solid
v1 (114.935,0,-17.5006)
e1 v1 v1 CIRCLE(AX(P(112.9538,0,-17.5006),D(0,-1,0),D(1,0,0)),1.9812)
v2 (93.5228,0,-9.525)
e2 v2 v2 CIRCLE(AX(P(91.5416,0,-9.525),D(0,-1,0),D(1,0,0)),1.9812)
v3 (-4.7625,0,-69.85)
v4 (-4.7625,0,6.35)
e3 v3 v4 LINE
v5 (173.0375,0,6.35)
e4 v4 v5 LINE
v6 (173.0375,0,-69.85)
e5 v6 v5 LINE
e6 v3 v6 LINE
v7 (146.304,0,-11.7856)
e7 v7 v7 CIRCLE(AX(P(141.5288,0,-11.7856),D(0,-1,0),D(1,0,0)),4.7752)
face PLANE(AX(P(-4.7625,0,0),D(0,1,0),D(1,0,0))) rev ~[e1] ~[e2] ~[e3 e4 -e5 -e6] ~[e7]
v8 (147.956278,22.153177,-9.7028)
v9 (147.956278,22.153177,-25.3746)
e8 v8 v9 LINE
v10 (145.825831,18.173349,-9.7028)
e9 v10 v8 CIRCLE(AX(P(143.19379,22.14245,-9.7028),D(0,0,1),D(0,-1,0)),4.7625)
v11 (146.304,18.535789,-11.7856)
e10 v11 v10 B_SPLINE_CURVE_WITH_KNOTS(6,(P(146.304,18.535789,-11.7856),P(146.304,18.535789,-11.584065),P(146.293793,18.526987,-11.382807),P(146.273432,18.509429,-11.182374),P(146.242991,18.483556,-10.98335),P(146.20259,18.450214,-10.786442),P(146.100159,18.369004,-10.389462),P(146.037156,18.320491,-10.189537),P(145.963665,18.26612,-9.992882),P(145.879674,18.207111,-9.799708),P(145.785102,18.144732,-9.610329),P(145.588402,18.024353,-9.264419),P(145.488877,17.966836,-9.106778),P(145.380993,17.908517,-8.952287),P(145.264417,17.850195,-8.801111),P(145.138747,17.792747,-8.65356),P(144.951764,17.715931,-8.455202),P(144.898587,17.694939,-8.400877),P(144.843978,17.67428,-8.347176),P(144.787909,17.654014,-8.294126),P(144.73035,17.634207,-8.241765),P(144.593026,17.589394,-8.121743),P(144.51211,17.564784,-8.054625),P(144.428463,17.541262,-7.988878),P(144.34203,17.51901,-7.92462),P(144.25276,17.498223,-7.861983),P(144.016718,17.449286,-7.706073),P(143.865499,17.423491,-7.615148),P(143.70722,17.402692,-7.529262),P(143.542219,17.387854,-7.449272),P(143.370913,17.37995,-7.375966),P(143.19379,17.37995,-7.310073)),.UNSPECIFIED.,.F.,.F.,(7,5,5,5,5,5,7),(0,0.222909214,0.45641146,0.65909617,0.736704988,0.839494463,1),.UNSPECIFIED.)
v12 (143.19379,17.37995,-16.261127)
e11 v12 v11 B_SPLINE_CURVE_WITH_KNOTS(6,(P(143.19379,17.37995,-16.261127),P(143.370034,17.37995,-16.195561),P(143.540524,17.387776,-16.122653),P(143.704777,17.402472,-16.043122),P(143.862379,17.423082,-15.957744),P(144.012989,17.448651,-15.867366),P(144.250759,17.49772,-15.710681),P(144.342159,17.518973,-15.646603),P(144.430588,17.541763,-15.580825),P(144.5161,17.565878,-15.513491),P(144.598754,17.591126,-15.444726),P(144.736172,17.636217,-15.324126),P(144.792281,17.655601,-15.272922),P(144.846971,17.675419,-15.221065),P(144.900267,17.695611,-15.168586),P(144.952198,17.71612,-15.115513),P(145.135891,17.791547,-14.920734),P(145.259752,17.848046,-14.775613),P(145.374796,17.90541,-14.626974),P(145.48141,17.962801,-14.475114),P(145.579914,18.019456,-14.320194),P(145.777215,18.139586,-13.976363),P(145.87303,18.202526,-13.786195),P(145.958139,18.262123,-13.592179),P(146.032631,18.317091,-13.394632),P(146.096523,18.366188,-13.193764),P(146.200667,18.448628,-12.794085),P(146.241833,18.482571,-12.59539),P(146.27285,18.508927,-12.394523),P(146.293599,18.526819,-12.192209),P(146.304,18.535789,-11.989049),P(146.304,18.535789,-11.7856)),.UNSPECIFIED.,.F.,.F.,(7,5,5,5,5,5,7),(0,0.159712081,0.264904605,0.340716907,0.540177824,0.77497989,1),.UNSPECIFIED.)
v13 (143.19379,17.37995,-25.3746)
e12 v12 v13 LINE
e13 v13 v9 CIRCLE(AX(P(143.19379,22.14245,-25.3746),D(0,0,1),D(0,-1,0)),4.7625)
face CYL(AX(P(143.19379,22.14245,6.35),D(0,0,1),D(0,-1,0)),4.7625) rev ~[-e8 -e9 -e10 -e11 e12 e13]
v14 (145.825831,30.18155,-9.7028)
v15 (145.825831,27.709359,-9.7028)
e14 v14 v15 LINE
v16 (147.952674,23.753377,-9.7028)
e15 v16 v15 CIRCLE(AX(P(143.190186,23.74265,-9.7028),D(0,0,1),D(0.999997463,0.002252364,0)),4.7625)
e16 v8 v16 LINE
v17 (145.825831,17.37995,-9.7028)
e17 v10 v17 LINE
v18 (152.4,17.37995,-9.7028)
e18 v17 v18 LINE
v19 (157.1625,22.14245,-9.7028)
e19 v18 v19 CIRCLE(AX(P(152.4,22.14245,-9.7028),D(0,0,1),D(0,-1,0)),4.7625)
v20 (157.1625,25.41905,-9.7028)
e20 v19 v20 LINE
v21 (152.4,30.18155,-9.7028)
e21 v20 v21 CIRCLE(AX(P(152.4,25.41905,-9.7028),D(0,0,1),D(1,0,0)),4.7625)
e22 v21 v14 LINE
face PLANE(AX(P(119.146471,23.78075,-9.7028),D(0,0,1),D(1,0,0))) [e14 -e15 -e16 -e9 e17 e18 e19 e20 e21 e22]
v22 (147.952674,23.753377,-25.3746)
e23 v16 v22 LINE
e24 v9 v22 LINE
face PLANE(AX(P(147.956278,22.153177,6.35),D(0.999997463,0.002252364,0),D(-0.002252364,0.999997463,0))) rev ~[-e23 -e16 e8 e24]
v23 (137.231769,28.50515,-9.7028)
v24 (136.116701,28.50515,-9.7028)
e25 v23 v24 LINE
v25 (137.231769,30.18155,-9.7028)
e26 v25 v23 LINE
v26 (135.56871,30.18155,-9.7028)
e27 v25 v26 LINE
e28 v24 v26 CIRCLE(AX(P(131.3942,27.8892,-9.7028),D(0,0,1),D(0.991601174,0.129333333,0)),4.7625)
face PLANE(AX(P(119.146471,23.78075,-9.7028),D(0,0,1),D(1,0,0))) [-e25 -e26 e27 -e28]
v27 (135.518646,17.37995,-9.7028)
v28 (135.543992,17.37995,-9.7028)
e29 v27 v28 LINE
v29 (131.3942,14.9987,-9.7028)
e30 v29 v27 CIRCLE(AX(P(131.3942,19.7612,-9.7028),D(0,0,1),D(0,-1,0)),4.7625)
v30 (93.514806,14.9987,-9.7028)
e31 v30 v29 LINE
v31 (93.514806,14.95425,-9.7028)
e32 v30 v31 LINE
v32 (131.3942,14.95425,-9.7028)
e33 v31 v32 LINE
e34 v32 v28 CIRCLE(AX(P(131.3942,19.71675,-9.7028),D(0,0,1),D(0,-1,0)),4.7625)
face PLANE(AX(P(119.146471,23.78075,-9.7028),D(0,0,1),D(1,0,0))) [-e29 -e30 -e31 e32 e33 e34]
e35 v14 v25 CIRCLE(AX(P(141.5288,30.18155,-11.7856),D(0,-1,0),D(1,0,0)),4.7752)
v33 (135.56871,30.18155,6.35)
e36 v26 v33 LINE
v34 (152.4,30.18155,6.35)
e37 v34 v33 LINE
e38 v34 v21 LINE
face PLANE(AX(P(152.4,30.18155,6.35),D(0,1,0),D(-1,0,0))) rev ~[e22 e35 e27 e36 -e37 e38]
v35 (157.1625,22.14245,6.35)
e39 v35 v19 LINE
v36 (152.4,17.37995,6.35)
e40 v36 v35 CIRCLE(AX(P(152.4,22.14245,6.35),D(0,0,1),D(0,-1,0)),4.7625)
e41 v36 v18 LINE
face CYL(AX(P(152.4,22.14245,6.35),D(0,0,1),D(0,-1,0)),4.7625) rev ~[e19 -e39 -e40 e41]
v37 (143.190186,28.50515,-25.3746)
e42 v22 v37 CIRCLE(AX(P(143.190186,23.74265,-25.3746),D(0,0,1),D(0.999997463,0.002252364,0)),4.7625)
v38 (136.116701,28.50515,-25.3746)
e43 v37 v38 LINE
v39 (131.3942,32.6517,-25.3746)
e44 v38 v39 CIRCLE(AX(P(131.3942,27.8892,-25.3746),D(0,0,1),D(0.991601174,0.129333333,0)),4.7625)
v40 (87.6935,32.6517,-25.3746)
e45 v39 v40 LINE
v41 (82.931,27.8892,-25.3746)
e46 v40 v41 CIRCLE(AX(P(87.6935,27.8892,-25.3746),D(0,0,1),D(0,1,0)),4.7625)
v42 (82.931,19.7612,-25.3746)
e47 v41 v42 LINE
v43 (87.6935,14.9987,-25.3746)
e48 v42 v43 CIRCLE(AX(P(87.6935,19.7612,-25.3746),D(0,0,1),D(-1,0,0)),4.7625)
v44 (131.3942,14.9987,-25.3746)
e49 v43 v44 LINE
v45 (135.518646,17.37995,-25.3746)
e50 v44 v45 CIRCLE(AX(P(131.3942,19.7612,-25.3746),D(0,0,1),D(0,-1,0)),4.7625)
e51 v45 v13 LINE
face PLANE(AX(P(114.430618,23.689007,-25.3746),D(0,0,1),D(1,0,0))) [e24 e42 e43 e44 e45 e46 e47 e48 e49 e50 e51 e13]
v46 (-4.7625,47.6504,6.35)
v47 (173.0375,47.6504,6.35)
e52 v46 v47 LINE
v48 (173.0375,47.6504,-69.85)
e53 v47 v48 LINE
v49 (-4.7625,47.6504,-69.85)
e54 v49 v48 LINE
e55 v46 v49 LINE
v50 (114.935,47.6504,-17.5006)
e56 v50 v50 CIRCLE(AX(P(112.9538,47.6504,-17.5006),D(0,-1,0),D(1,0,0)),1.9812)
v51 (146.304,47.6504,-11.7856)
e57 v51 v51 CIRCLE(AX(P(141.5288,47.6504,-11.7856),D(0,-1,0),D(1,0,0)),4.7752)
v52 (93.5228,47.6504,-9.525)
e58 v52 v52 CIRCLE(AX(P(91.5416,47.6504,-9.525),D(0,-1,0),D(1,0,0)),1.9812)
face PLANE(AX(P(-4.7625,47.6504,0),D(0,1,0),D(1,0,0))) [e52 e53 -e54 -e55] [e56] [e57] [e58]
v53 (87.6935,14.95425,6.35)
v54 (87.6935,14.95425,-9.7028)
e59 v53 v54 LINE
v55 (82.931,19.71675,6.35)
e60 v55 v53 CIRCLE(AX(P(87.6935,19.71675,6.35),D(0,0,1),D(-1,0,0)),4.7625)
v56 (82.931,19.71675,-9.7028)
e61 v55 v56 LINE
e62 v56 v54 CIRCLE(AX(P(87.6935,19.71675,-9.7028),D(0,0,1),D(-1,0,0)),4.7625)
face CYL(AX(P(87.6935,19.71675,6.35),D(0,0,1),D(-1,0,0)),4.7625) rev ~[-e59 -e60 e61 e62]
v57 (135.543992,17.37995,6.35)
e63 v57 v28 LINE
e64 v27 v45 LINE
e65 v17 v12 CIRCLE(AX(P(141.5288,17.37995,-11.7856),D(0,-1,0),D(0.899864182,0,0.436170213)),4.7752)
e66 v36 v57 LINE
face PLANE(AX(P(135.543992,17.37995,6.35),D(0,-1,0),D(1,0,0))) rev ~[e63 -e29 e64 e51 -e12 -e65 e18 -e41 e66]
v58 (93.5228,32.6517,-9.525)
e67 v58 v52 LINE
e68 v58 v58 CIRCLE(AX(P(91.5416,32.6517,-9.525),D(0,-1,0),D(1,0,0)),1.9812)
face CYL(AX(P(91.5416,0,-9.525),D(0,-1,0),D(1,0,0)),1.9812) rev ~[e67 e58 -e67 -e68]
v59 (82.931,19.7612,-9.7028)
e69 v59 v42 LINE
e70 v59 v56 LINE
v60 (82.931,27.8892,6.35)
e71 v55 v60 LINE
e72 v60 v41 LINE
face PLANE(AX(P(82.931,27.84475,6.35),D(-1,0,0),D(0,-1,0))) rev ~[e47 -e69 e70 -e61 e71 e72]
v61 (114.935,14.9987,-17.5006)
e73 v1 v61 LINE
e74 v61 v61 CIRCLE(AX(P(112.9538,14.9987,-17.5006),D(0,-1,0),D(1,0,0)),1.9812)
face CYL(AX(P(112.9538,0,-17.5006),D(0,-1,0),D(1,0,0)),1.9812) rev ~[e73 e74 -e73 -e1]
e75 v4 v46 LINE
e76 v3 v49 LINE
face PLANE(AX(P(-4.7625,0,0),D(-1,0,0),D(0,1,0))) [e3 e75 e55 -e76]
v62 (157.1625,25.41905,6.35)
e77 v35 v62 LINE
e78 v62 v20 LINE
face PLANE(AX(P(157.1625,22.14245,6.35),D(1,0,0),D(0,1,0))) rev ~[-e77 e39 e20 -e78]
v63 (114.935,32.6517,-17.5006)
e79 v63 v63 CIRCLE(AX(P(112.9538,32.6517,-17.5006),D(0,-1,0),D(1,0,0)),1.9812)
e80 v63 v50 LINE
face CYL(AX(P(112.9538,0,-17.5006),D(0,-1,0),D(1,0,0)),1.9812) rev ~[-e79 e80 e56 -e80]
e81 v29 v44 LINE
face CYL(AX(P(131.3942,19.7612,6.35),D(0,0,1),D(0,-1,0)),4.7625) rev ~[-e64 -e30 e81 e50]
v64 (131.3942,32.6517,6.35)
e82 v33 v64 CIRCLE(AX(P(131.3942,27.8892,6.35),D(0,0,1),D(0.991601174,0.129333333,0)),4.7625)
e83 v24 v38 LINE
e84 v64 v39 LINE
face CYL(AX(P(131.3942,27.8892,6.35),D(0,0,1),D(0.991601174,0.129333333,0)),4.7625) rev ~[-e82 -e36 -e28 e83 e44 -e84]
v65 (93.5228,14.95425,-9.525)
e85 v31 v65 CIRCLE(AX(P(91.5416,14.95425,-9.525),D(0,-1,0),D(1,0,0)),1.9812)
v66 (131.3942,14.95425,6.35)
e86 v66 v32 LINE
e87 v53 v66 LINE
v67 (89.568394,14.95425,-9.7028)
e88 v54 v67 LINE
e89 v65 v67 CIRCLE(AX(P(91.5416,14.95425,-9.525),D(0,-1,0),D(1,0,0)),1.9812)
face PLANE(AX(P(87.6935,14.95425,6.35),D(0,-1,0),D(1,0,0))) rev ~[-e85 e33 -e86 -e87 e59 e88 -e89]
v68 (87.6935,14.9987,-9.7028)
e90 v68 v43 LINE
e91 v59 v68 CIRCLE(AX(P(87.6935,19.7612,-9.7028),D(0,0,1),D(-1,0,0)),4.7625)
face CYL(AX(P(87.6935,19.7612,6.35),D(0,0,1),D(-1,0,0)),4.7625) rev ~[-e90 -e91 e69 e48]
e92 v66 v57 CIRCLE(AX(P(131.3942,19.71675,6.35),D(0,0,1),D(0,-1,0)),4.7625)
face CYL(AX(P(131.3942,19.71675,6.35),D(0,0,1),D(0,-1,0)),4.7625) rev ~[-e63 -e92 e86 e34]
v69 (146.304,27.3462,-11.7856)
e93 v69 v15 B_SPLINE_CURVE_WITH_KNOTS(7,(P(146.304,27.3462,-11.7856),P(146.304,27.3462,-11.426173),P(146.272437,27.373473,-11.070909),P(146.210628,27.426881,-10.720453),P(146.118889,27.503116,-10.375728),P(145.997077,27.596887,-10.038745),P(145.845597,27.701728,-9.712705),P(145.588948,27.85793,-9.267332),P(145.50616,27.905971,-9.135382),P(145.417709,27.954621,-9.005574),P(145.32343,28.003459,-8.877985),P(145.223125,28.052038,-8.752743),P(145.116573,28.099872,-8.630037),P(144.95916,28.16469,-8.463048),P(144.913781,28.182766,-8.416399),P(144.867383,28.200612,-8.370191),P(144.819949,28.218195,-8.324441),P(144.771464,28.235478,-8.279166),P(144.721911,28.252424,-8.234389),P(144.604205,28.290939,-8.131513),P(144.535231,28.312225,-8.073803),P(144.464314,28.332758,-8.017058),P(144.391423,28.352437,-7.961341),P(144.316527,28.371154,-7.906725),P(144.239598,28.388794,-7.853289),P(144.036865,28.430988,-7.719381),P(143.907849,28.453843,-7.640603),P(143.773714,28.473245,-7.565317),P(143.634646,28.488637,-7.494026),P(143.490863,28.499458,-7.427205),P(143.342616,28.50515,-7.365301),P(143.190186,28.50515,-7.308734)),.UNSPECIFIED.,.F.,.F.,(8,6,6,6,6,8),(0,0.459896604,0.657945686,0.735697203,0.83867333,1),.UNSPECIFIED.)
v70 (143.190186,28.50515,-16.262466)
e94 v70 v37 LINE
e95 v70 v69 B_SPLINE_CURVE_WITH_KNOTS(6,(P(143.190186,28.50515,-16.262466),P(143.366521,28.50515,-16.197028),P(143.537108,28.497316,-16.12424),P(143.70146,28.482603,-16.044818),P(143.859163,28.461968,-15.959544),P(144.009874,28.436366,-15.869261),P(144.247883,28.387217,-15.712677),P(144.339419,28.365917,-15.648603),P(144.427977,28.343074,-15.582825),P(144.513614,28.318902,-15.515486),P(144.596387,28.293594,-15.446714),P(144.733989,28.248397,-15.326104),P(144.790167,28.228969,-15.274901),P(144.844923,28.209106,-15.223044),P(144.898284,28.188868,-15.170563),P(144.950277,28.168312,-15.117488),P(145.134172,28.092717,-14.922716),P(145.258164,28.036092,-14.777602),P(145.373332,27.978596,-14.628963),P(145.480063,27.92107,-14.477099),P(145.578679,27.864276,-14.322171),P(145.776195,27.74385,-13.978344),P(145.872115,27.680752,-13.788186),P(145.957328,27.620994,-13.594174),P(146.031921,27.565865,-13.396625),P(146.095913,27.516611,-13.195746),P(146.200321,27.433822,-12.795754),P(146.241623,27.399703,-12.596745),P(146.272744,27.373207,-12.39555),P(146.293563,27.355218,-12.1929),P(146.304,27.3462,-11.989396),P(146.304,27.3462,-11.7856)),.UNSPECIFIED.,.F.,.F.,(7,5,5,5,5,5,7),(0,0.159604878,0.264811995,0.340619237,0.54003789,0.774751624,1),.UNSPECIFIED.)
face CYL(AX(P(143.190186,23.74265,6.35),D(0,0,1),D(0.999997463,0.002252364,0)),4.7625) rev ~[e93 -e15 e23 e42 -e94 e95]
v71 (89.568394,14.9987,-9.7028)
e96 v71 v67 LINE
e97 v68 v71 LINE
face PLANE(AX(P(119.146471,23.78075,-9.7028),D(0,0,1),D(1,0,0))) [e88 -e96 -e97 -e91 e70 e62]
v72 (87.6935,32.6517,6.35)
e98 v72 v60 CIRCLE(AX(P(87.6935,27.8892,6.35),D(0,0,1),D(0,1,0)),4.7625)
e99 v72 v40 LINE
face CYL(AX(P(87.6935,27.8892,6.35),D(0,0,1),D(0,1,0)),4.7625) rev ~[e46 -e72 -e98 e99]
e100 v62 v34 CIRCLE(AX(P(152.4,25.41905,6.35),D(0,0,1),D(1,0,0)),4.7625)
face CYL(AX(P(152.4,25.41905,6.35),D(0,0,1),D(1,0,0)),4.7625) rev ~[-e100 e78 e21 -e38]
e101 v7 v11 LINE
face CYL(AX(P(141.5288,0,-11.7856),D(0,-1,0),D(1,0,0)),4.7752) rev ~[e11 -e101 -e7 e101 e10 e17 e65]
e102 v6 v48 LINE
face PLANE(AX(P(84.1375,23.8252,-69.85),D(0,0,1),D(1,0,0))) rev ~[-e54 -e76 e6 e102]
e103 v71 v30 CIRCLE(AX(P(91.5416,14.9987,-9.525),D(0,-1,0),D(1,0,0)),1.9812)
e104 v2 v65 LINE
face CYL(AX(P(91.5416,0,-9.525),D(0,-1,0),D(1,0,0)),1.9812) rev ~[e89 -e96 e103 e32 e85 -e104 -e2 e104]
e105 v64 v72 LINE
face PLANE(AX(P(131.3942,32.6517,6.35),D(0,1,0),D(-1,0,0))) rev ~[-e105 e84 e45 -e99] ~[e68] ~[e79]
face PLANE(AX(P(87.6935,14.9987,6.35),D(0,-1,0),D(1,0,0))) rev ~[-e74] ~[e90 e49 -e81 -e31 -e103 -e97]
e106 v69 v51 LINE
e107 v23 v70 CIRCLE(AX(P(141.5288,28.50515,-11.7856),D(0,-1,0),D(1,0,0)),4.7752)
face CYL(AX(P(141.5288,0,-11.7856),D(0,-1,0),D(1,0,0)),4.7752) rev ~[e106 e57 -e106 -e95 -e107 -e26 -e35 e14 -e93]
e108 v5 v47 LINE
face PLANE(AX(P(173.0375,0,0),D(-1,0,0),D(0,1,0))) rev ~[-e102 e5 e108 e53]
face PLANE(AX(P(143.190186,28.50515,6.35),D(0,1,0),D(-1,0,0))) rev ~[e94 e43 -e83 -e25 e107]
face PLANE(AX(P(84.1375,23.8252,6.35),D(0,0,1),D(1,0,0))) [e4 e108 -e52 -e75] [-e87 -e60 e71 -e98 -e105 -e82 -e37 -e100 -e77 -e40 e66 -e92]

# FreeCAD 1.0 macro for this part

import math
import FreeCAD as App
import Part
import Sketcher
Q = App.Units.Quantity


def add_polygon(sketch, points):
    """Adds a closed chain of lines whose ends are joined by coincident constraints."""
    first, n = sketch.GeometryCount, len(points)
    for a, b in zip(points, points[1:] + points[:1]):
        sketch.addGeometry(Part.LineSegment(App.Vector(*a, 0), App.Vector(*b, 0)), False)
    for i in range(n):
        sketch.addConstraint(Sketcher.Constraint("Coincident", first + i, 2, first + (i + 1) % n, 1))

doc = App.newDocument("Part")
body = doc.addObject("PartDesign::Body", "Body")

sketch1 = body.newObject("Sketcher::SketchObject", "Sketch")
sketch1.AttachmentSupport = (doc.getObject("XY_Plane"), [""])
sketch1.MapMode = "FlatFace"
add_polygon(sketch1, [(-5, 48), (-5, 0), (173, 0), (173, 48)])
sketch1.addConstraint([
    Sketcher.Constraint("Vertical", 0),
    Sketcher.Constraint("Horizontal", 1),
    Sketcher.Constraint("Vertical", 2),
    Sketcher.Constraint("Horizontal", 3),
    Sketcher.Constraint("PointOnObject", 0, 2, -1),
    Sketcher.Constraint("DistanceX", 1, 1, 1, 2, Q("7 in")),
    Sketcher.Constraint("DistanceY", 0, 2, 0, 1, Q("1.876 in")),
    Sketcher.Constraint("DistanceX", 0, 2, -1, 1, Q("0.1875 in")),
])
pad1 = body.newObject("PartDesign::Pad", "Pad")
pad1.Profile = sketch1
pad1.Type = "TwoLengths"
pad1.Length = Q("2.75 in")
pad1.Length2 = Q("0.25 in")
pad1.Reversed = True

sketch2 = body.newObject("Sketcher::SketchObject", "Sketch001")
sketch2.AttachmentSupport = (doc.getObject("XZ_Plane"), [""])
sketch2.MapMode = "FlatFace"
sketch2.addGeometry([
    Part.Circle(App.Vector(141.5, -11.8, 0), App.Vector(0, 0, 1), 4.8),
    Part.Circle(App.Vector(113, -17.5, 0), App.Vector(0, 0, 1), 2),
    Part.Circle(App.Vector(91.5, -9.5, 0), App.Vector(0, 0, 1), 2),
], False)
sketch2.addConstraint([
    Sketcher.Constraint("Equal", 1, 2),
    Sketcher.Constraint("Diameter", 0, Q("0.376 in")),
    Sketcher.Constraint("Diameter", 1, Q("0.156 in")),
    Sketcher.Constraint("DistanceX", -1, 1, 0, 3, Q("5.572 in")),
    Sketcher.Constraint("DistanceY", 0, 3, -1, 1, Q("0.464 in")),
    Sketcher.Constraint("DistanceX", -1, 1, 1, 3, Q("4.447 in")),
    Sketcher.Constraint("DistanceY", 1, 3, -1, 1, Q("0.689 in")),
    Sketcher.Constraint("DistanceX", -1, 1, 2, 3, Q("3.604 in")),
    Sketcher.Constraint("DistanceY", 2, 3, -1, 1, Q("0.375 in")),
])
pocket1 = body.newObject("PartDesign::Pocket", "Pocket")
pocket1.Profile = sketch2
pocket1.Type = "ThroughAll"

sketch3 = body.newObject("Sketcher::SketchObject", "Sketch002")
sketch3.AttachmentSupport = (doc.getObject("XY_Plane"), [""])
sketch3.MapMode = "FlatFace"
sketch3.AttachmentOffset = App.Placement(App.Vector(0, 0, 0.25 * 25.4), App.Rotation())
sketch3.addGeometry([
    Part.LineSegment(App.Vector(131.4, 32.6, 0), App.Vector(87.7, 32.6, 0)),
    Part.ArcOfCircle(Part.Circle(App.Vector(87.7, 27.8, 0), App.Vector(0, 0, 1), 4.8), math.radians(90), math.radians(180)),
    Part.LineSegment(App.Vector(82.9, 27.8, 0), App.Vector(82.9, 19.7, 0)),
    Part.ArcOfCircle(Part.Circle(App.Vector(87.7, 19.7, 0), App.Vector(0, 0, 1), 4.8), math.radians(180), math.radians(270)),
    Part.LineSegment(App.Vector(87.7, 15, 0), App.Vector(131.4, 15, 0)),
    Part.ArcOfCircle(Part.Circle(App.Vector(131.4, 19.7, 0), App.Vector(0, 0, 1), 4.8), math.radians(-90), math.radians(-29)),
    Part.LineSegment(App.Vector(135.5, 17.4, 0), App.Vector(152.4, 17.4, 0)),
    Part.ArcOfCircle(Part.Circle(App.Vector(152.4, 22.1, 0), App.Vector(0, 0, 1), 4.8), math.radians(-90), math.radians(0)),
    Part.LineSegment(App.Vector(157.2, 22.1, 0), App.Vector(157.2, 25.4, 0)),
    Part.ArcOfCircle(Part.Circle(App.Vector(152.4, 25.4, 0), App.Vector(0, 0, 1), 4.8), math.radians(0), math.radians(90)),
    Part.LineSegment(App.Vector(152.4, 30.2, 0), App.Vector(135.5, 30.2, 0)),
    Part.ArcOfCircle(Part.Circle(App.Vector(131.4, 27.8, 0), App.Vector(0, 0, 1), 4.8), math.radians(29), math.radians(90)),
], False)
sketch3.addConstraint([
    Sketcher.Constraint("Tangent", 0, 2, 1, 1),
    Sketcher.Constraint("Tangent", 1, 2, 2, 1),
    Sketcher.Constraint("Tangent", 2, 2, 3, 1),
    Sketcher.Constraint("Tangent", 3, 2, 4, 1),
    Sketcher.Constraint("Tangent", 4, 2, 5, 1),
    Sketcher.Constraint("Coincident", 5, 2, 6, 1),
    Sketcher.Constraint("Tangent", 6, 2, 7, 1),
    Sketcher.Constraint("Tangent", 7, 2, 8, 1),
    Sketcher.Constraint("Tangent", 8, 2, 9, 1),
    Sketcher.Constraint("Tangent", 9, 2, 10, 1),
    Sketcher.Constraint("Coincident", 10, 2, 11, 1),
    Sketcher.Constraint("Tangent", 11, 2, 0, 1),
    Sketcher.Constraint("Horizontal", 0),
    Sketcher.Constraint("Vertical", 2),
    Sketcher.Constraint("Horizontal", 4),
    Sketcher.Constraint("Horizontal", 6),
    Sketcher.Constraint("Vertical", 8),
    Sketcher.Constraint("Horizontal", 10),
    Sketcher.Constraint("Equal", 1, 3),
    Sketcher.Constraint("Equal", 3, 5),
    Sketcher.Constraint("Equal", 5, 7),
    Sketcher.Constraint("Equal", 7, 9),
    Sketcher.Constraint("Equal", 9, 11),
    Sketcher.Constraint("Vertical", 5, 3, 11, 3),
    Sketcher.Constraint("Vertical", 5, 2, 10, 2),
    Sketcher.Constraint("DistanceX", -1, 1, 7, 3, Q("6 in")),
    Sketcher.Constraint("Radius", 1, Q("0.1875 in")),
    Sketcher.Constraint("DistanceY", 2, 2, 2, 1, Q("0.32 in")),
    Sketcher.Constraint("DistanceY", 8, 1, 8, 2, Q("0.129 in")),
    Sketcher.Constraint("DistanceX", 0, 2, 0, 1, Q("1.7205 in")),
    Sketcher.Constraint("DistanceX", -1, 1, 5, 3, Q("5.173 in")),
    Sketcher.Constraint("DistanceY", -1, 1, 1, 3, 27.84475),
])
pocket2 = body.newObject("PartDesign::Pocket", "Pocket001")
pocket2.Profile = sketch3
pocket2.Length = Q("0.632 in")

sketch4 = body.newObject("Sketcher::SketchObject", "Sketch003")
sketch4.AttachmentSupport = (doc.getObject("XY_Plane"), [""])
sketch4.MapMode = "FlatFace"
sketch4.AttachmentOffset = App.Placement(App.Vector(0, 0, 0.25 * 25.4), App.Rotation())
sketch4.addGeometry([
    Part.LineSegment(App.Vector(143.2, 28.5, 0), App.Vector(136.1, 28.5, 0)),
    Part.ArcOfCircle(Part.Circle(App.Vector(131.4, 27.9, 0), App.Vector(0, 0, 1), 4.8), math.radians(7), math.radians(90)),
    Part.LineSegment(App.Vector(131.4, 32.7, 0), App.Vector(87.7, 32.7, 0)),
    Part.ArcOfCircle(Part.Circle(App.Vector(87.7, 27.9, 0), App.Vector(0, 0, 1), 4.8), math.radians(90), math.radians(180)),
    Part.LineSegment(App.Vector(82.9, 27.9, 0), App.Vector(82.9, 19.8, 0)),
    Part.ArcOfCircle(Part.Circle(App.Vector(87.7, 19.8, 0), App.Vector(0, 0, 1), 4.8), math.radians(180), math.radians(270)),
    Part.LineSegment(App.Vector(87.7, 15, 0), App.Vector(131.4, 15, 0)),
    Part.ArcOfCircle(Part.Circle(App.Vector(131.4, 19.8, 0), App.Vector(0, 0, 1), 4.8), math.radians(-90), math.radians(-30)),
    Part.LineSegment(App.Vector(135.5, 17.4, 0), App.Vector(143.2, 17.4, 0)),
    Part.ArcOfCircle(Part.Circle(App.Vector(143.2, 22.1, 0), App.Vector(0, 0, 1), 4.8), math.radians(-90), math.radians(0)),
    Part.LineSegment(App.Vector(148, 22.2, 0), App.Vector(148, 23.8, 0)),
    Part.ArcOfCircle(Part.Circle(App.Vector(143.2, 23.7, 0), App.Vector(0, 0, 1), 4.8), math.radians(0), math.radians(90)),
], False)
sketch4.addConstraint([
    Sketcher.Constraint("Coincident", 0, 2, 1, 1),
    Sketcher.Constraint("Tangent", 1, 2, 2, 1),
    Sketcher.Constraint("Tangent", 2, 2, 3, 1),
    Sketcher.Constraint("Tangent", 3, 2, 4, 1),
    Sketcher.Constraint("Tangent", 4, 2, 5, 1),
    Sketcher.Constraint("Tangent", 5, 2, 6, 1),
    Sketcher.Constraint("Tangent", 6, 2, 7, 1),
    Sketcher.Constraint("Coincident", 7, 2, 8, 1),
    Sketcher.Constraint("Tangent", 8, 2, 9, 1),
    Sketcher.Constraint("Tangent", 9, 2, 10, 1),
    Sketcher.Constraint("Tangent", 10, 2, 11, 1),
    Sketcher.Constraint("Tangent", 11, 2, 0, 1),
    Sketcher.Constraint("Horizontal", 0),
    Sketcher.Constraint("Horizontal", 2),
    Sketcher.Constraint("Vertical", 4),
    Sketcher.Constraint("Horizontal", 6),
    Sketcher.Constraint("Horizontal", 8),
    Sketcher.Constraint("Equal", 1, 3),
    Sketcher.Constraint("Equal", 3, 5),
    Sketcher.Constraint("Equal", 5, 7),
    Sketcher.Constraint("Equal", 7, 9),
    Sketcher.Constraint("Equal", 9, 11),
    Sketcher.Constraint("Vertical", 1, 3, 7, 3),
    Sketcher.Constraint("Radius", 1, Q("0.1875 in")),
    Sketcher.Constraint("DistanceY", 4, 2, 4, 1, Q("0.32 in")),
    Sketcher.Constraint("Distance", 10, Q("0.0630002 in")),
    Sketcher.Constraint("DistanceX", 2, 2, 2, 1, Q("1.7205 in")),
    Sketcher.Constraint("DistanceX", -1, 1, 1, 3, Q("5.173 in")),
    Sketcher.Constraint("DistanceY", -1, 1, 1, 3, Q("1.098 in")),
    Sketcher.Constraint("DistanceY", 7, 3, 9, 3, Q("0.09375 in")),
    Sketcher.Constraint("DistanceX", 0, 2, 0, 1, 7.073486),
    Sketcher.Constraint("DistanceX", 8, 1, 8, 2, 7.675144),
])
pocket3 = body.newObject("PartDesign::Pocket", "Pocket002")
pocket3.Profile = sketch4
pocket3.Length = Q("1.249 in")

doc.recompute()
